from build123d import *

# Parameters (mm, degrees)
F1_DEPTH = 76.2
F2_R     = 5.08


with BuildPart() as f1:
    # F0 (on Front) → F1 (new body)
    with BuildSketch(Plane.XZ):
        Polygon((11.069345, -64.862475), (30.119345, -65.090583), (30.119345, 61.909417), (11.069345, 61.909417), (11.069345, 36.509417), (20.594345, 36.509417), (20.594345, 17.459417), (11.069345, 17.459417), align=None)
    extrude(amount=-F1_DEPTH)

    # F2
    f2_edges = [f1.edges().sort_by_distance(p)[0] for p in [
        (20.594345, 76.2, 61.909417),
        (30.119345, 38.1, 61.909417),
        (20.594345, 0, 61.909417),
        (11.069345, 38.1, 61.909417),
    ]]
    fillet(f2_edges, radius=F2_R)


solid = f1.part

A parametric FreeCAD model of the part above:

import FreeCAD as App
import Part
import Sketcher

V = App.Vector
Q = App.Units.Quantity


def edges_at(feature, points):
    """Names of the edges that pass closest to the given points."""
    edges = feature.Shape.Edges
    near = lambda p: min(range(len(edges)), key=lambda i: edges[i].distToShape(Part.Vertex(*p))[0])
    return sorted({f"Edge{near(p) + 1}" for p in points})

doc = App.newDocument("Part")
body = doc.addObject("PartDesign::Body", "Body")

# Sketch on XZ plane
sketch1 = doc.addObject("Sketcher::SketchObject", "Sketch")
body.addObject(sketch1)
sketch1.AttachmentSupport = (doc.XZ_Plane, [""])
sketch1.MapMode = "FlatFace"
sketch1.addGeometry([
    Part.LineSegment(V(11.069345, -64.862475, 0), V(30.119345, -65.090583, 0)),  # 0
    Part.LineSegment(V(30.119345, -65.090583, 0), V(30.119345, 61.909417, 0)),  # 1
    Part.LineSegment(V(30.119345, 61.909417, 0), V(11.069345, 61.909417, 0)),  # 2
    Part.LineSegment(V(11.069345, 61.909417, 0), V(11.069345, 36.509417, 0)),  # 3
    Part.LineSegment(V(11.069345, 36.509417, 0), V(20.594345, 36.509417, 0)),  # 4
    Part.LineSegment(V(20.594345, 36.509417, 0), V(20.594345, 17.459417, 0)),  # 5
    Part.LineSegment(V(20.594345, 17.459417, 0), V(11.069345, 17.459417, 0)),  # 6
    Part.LineSegment(V(11.069345, 17.459417, 0), V(11.069345, -64.862475, 0)),  # 7
], False)
sketch1.addConstraint([
    Sketcher.Constraint("Coincident", 0, 2, 1, 1),
    Sketcher.Constraint("Coincident", 1, 2, 2, 1),
    Sketcher.Constraint("Coincident", 2, 2, 3, 1),
    Sketcher.Constraint("Coincident", 3, 2, 4, 1),
    Sketcher.Constraint("Coincident", 4, 2, 5, 1),
    Sketcher.Constraint("Coincident", 5, 2, 6, 1),
    Sketcher.Constraint("Coincident", 6, 2, 7, 1),
    Sketcher.Constraint("Coincident", 7, 2, 0, 1),
    Sketcher.Constraint("Vertical", 1),
    Sketcher.Constraint("Horizontal", 2),
    Sketcher.Constraint("Vertical", 3),
    Sketcher.Constraint("Horizontal", 4),
    Sketcher.Constraint("Vertical", 5),
    Sketcher.Constraint("Horizontal", 6),
    Sketcher.Constraint("Vertical", 7),
    Sketcher.Constraint("Vertical", 3, 2, 6, 2),
    Sketcher.Constraint("Equal", 2, 5),
    Sketcher.Constraint("DistanceY", 1, 1, 1, 2, Q("5 in")),
    Sketcher.Constraint("DistanceY", 3, 2, 3, 1, Q("1 in")),
    Sketcher.Constraint("DistanceX", 2, 2, 2, 1, Q("0.75 in")),
    Sketcher.Constraint("DistanceX", 4, 1, 4, 2, Q("0.375 in")),
    Sketcher.Constraint("DistanceY", 7, 2, 7, 1, 82.321892),
    Sketcher.Constraint("DistanceX", -1, 1, 0, 2, 30.119345),
    Sketcher.Constraint("DistanceY", 0, 2, -1, 1, 65.090583),
])
pad1 = doc.addObject("PartDesign::Pad", "Pad")
body.addObject(pad1)
pad1.Profile = sketch1
pad1.Length = Q("3 in")
pad1.Reversed = True
doc.recompute()

fillet = doc.addObject("PartDesign::Fillet", "Fillet")
body.addObject(fillet)
fillet.Base = (pad1, edges_at(pad1, [
    (20.594, 76.2, 61.909),
    (30.119, 38.1, 61.909),
    (20.594, 0, 61.909),
    (11.069, 38.1, 61.909),
]))
fillet.Radius = Q("0.2 in")

doc.recompute()
